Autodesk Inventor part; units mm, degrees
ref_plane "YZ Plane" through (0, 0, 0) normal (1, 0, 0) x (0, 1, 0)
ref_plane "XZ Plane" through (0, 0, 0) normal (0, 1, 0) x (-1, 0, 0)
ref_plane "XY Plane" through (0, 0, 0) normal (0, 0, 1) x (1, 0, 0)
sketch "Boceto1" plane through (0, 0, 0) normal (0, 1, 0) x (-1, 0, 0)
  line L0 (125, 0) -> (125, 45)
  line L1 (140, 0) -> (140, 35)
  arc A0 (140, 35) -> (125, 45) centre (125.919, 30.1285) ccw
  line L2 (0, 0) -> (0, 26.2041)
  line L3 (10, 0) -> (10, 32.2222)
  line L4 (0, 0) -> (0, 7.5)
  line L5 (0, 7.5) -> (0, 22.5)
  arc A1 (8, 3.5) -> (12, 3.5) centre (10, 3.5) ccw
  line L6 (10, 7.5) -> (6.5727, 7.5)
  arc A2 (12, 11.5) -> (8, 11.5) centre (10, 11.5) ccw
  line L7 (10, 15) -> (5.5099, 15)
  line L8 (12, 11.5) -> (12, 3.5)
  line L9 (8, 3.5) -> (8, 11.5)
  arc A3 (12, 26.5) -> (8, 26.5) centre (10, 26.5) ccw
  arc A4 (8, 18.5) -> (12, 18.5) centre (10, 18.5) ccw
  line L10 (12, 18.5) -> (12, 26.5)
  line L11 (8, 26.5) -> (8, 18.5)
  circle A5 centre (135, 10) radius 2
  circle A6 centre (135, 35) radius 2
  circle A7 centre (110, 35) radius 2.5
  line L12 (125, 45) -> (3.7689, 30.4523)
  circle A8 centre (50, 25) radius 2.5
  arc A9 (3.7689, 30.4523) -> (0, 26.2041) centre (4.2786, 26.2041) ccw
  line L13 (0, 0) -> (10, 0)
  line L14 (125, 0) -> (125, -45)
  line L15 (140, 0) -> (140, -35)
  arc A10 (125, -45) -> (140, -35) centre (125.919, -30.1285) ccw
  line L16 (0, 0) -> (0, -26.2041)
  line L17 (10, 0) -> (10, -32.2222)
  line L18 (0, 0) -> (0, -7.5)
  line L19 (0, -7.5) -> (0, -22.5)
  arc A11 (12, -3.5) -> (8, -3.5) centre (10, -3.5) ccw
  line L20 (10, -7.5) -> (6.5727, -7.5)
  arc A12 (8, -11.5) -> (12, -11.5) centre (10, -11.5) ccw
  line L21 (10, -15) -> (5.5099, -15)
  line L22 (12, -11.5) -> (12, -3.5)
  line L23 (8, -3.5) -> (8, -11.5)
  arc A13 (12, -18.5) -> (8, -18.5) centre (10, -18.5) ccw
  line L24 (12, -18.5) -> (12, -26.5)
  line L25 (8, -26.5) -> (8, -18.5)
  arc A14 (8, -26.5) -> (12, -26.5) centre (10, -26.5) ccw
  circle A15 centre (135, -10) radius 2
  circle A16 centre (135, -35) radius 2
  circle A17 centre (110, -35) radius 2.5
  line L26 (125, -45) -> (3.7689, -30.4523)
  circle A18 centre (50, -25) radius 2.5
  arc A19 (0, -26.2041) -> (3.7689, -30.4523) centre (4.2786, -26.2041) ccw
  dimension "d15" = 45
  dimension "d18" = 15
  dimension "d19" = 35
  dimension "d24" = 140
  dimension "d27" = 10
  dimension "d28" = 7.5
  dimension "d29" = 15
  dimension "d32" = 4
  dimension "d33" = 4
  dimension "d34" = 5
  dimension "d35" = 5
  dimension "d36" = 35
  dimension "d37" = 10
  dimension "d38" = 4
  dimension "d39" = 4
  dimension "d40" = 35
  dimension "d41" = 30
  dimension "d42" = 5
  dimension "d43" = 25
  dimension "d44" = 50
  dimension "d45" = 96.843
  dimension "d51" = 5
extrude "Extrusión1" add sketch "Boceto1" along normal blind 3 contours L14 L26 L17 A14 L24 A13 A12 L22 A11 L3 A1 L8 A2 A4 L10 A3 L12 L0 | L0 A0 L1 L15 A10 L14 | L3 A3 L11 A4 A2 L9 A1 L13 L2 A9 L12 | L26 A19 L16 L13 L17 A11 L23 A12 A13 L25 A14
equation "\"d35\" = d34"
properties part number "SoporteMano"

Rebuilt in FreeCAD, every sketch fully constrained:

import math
import FreeCAD as App
import Part
import Sketcher

V = App.Vector
Q = App.Units.Quantity

doc = App.newDocument("Part")
body = doc.addObject("PartDesign::Body", "Body")

# Sketch on XZ plane
sketch1 = body.newObject("Sketcher::SketchObject", "Sketch")
sketch1.AttachmentSupport = (doc.getObject("XZ_Plane"), [""])
sketch1.MapMode = "FlatFace"
sketch1.addGeometry(Part.ArcOfCircle(Part.Circle(V(-125.919, -30.1285, 0), V(0, 0, 1), 14.899868), math.radians(-160.916291), math.radians(-86.463844)), False)
sketch1.addGeometry(Part.LineSegment(V(-140, -35, 0), V(-140, 35, 0)), False)
sketch1.addGeometry(Part.ArcOfCircle(Part.Circle(V(-125.919, 30.1285, 0), V(0, 0, 1), 14.899868), math.radians(86.463844), math.radians(160.916291)), False)
sketch1.addGeometry(Part.LineSegment(V(-125, 45, 0), V(-3.7689, 30.4523, 0)), False)
sketch1.addGeometry(Part.ArcOfCircle(Part.Circle(V(-4.2786, 26.2041, 0), V(0, 0, 1), 4.278668), math.radians(0), math.radians(83.158343)), False)
sketch1.addGeometry(Part.LineSegment(V(0, 26.2041, 0), V(0, -26.2041, 0)), False)
sketch1.addGeometry(Part.ArcOfCircle(Part.Circle(V(-4.2786, -26.2041, 0), V(0, 0, 1), 4.2786), math.radians(-83.158343), math.radians(0)), False)
sketch1.addGeometry(Part.LineSegment(V(-3.7689, -30.4523, 0), V(-125, -45, 0)), False)
sketch1.addGeometry(Part.ArcOfCircle(Part.Circle(V(-10, -26.5, 0), V(0, 0, 1), 2), math.radians(180), math.radians(360)), False)
sketch1.addGeometry(Part.LineSegment(V(-8, -26.5, 0), V(-8, -18.5, 0)), False)
sketch1.addGeometry(Part.ArcOfCircle(Part.Circle(V(-10, -18.5, 0), V(0, 0, 1), 2), math.radians(0), math.radians(180)), False)
sketch1.addGeometry(Part.LineSegment(V(-12, -18.5, 0), V(-12, -26.5, 0)), False)
sketch1.addGeometry(Part.ArcOfCircle(Part.Circle(V(-10, -11.5, 0), V(0, 0, 1), 2), math.radians(180), math.radians(360)), False)
sketch1.addGeometry(Part.LineSegment(V(-8, -11.5, 0), V(-8, -3.5, 0)), False)
sketch1.addGeometry(Part.ArcOfCircle(Part.Circle(V(-10, -3.5, 0), V(0, 0, 1), 2), math.radians(0), math.radians(180)), False)
sketch1.addGeometry(Part.LineSegment(V(-12, -3.5, 0), V(-12, -11.5, 0)), False)
sketch1.addGeometry(Part.ArcOfCircle(Part.Circle(V(-10, 3.5, 0), V(0, 0, 1), 2), math.radians(180), math.radians(360)), False)
sketch1.addGeometry(Part.LineSegment(V(-8, 3.5, 0), V(-8, 11.5, 0)), False)
sketch1.addGeometry(Part.ArcOfCircle(Part.Circle(V(-10, 11.5, 0), V(0, 0, 1), 2), math.radians(0), math.radians(180)), False)
sketch1.addGeometry(Part.LineSegment(V(-12, 11.5, 0), V(-12, 3.5, 0)), False)
sketch1.addGeometry(Part.ArcOfCircle(Part.Circle(V(-10, 18.5, 0), V(0, 0, 1), 2), math.radians(180), math.radians(360)), False)
sketch1.addGeometry(Part.LineSegment(V(-8, 18.5, 0), V(-8, 26.5, 0)), False)
sketch1.addGeometry(Part.ArcOfCircle(Part.Circle(V(-10, 26.5, 0), V(0, 0, 1), 2), math.radians(0), math.radians(180)), False)
sketch1.addGeometry(Part.LineSegment(V(-12, 26.5, 0), V(-12, 18.5, 0)), False)
sketch1.addGeometry(Part.Circle(V(-50, -25, 0), V(0, 0, 1), 2.5), False)
sketch1.addGeometry(Part.Circle(V(-110, -35, 0), V(0, 0, 1), 2.5), False)
sketch1.addGeometry(Part.Circle(V(-50, 25, 0), V(0, 0, 1), 2.5), False)
sketch1.addGeometry(Part.Circle(V(-110, 35, 0), V(0, 0, 1), 2.5), False)
sketch1.addGeometry(Part.Circle(V(-135, 10, 0), V(0, 0, 1), 2), False)
sketch1.addGeometry(Part.Circle(V(-135, 35, 0), V(0, 0, 1), 2), False)
sketch1.addGeometry(Part.Circle(V(-135, -35, 0), V(0, 0, 1), 2), False)
sketch1.addGeometry(Part.Circle(V(-135, -10, 0), V(0, 0, 1), 2), False)
sketch1.addConstraint(Sketcher.Constraint("Coincident", 0, 1, 1, 1))
sketch1.addConstraint(Sketcher.Constraint("Coincident", 1, 2, 2, 2))
sketch1.addConstraint(Sketcher.Constraint("Coincident", 2, 1, 3, 1))
sketch1.addConstraint(Sketcher.Constraint("Tangent", 3, 2, 4, 2))
sketch1.addConstraint(Sketcher.Constraint("Tangent", 4, 1, 5, 1))
sketch1.addConstraint(Sketcher.Constraint("Tangent", 5, 2, 6, 2))
sketch1.addConstraint(Sketcher.Constraint("Tangent", 6, 1, 7, 1))
sketch1.addConstraint(Sketcher.Constraint("Coincident", 7, 2, 0, 2))
sketch1.addConstraint(Sketcher.Constraint("Tangent", 8, 2, 9, 1))
sketch1.addConstraint(Sketcher.Constraint("Tangent", 9, 2, 10, 1))
sketch1.addConstraint(Sketcher.Constraint("Tangent", 10, 2, 11, 1))
sketch1.addConstraint(Sketcher.Constraint("Tangent", 11, 2, 8, 1))
sketch1.addConstraint(Sketcher.Constraint("Tangent", 12, 2, 13, 1))
sketch1.addConstraint(Sketcher.Constraint("Tangent", 13, 2, 14, 1))
sketch1.addConstraint(Sketcher.Constraint("Tangent", 14, 2, 15, 1))
sketch1.addConstraint(Sketcher.Constraint("Tangent", 15, 2, 12, 1))
sketch1.addConstraint(Sketcher.Constraint("Tangent", 16, 2, 17, 1))
sketch1.addConstraint(Sketcher.Constraint("Tangent", 17, 2, 18, 1))
sketch1.addConstraint(Sketcher.Constraint("Tangent", 18, 2, 19, 1))
sketch1.addConstraint(Sketcher.Constraint("Tangent", 19, 2, 16, 1))
sketch1.addConstraint(Sketcher.Constraint("Tangent", 20, 2, 21, 1))
sketch1.addConstraint(Sketcher.Constraint("Tangent", 21, 2, 22, 1))
sketch1.addConstraint(Sketcher.Constraint("Tangent", 22, 2, 23, 1))
sketch1.addConstraint(Sketcher.Constraint("Tangent", 23, 2, 20, 1))
sketch1.addConstraint(Sketcher.Constraint("Vertical", 1))
sketch1.addConstraint(Sketcher.Constraint("Vertical", 5))
sketch1.addConstraint(Sketcher.Constraint("Vertical", 9))
sketch1.addConstraint(Sketcher.Constraint("Vertical", 11))
sketch1.addConstraint(Sketcher.Constraint("Vertical", 13))
sketch1.addConstraint(Sketcher.Constraint("Vertical", 15))
sketch1.addConstraint(Sketcher.Constraint("Vertical", 17))
sketch1.addConstraint(Sketcher.Constraint("Vertical", 19))
sketch1.addConstraint(Sketcher.Constraint("Vertical", 21))
sketch1.addConstraint(Sketcher.Constraint("Vertical", 23))
sketch1.addConstraint(Sketcher.Constraint("Equal", 0, 2))
sketch1.addConstraint(Sketcher.Constraint("Equal", 4, 6))
sketch1.addConstraint(Sketcher.Constraint("Equal", 10, 12))
sketch1.addConstraint(Sketcher.Constraint("Equal", 14, 16))
sketch1.addConstraint(Sketcher.Constraint("Equal", 18, 20))
sketch1.addConstraint(Sketcher.Constraint("Equal", 24, 25))
sketch1.addConstraint(Sketcher.Constraint("Equal", 25, 26))
sketch1.addConstraint(Sketcher.Constraint("Equal", 26, 27))
sketch1.addConstraint(Sketcher.Constraint("Equal", 22, 28))
sketch1.addConstraint(Sketcher.Constraint("Equal", 28, 29))
sketch1.addConstraint(Sketcher.Constraint("Equal", 29, 30))
sketch1.addConstraint(Sketcher.Constraint("Equal", 30, 31))
sketch1.addConstraint(Sketcher.Constraint("Symmetric", 4, 1, 5, 2, -1, 1))
sketch1.addConstraint(Sketcher.Constraint("Symmetric", 0, 3, 2, 3, -1))
sketch1.addConstraint(Sketcher.Constraint("Symmetric", 14, 3, 16, 3, -1))
sketch1.addConstraint(Sketcher.Constraint("Symmetric", 10, 3, 20, 3, -1))
sketch1.addConstraint(Sketcher.Constraint("Symmetric", 24, 3, 26, 3, -1))
sketch1.addConstraint(Sketcher.Constraint("Symmetric", 25, 3, 27, 3, -1))
sketch1.addConstraint(Sketcher.Constraint("Symmetric", 29, 3, 30, 3, -1))
sketch1.addConstraint(Sketcher.Constraint("Symmetric", 28, 3, 31, 3, -1))
sketch1.addConstraint(Sketcher.Constraint("Horizontal", 27, 3, 29, 3))
sketch1.addConstraint(Sketcher.Constraint("Horizontal", 30, 3, 0, 1))
sketch1.addConstraint(Sketcher.Constraint("Vertical", 10, 3, 12, 3))
sketch1.addConstraint(Sketcher.Constraint("Vertical", 28, 3, 29, 3))
sketch1.addConstraint(Sketcher.Constraint("Vertical", 2, 1, 7, 2))
sketch1.addConstraint(Sketcher.Constraint("Equal", 11, 13))
sketch1.addConstraint(Sketcher.Constraint("Equal", 15, 17))
sketch1.addConstraint(Sketcher.Constraint("Equal", 19, 21))
sketch1.addConstraint(Sketcher.Constraint("Diameter", 24, Q("5 mm")))
sketch1.addConstraint(Sketcher.Constraint("Diameter", 28, Q("4 mm")))
sketch1.addConstraint(Sketcher.Constraint("DistanceX", 8, 3, -1, 1, Q("10 mm")))
sketch1.addConstraint(Sketcher.Constraint("DistanceX", 24, 3, -1, 1, Q("50 mm")))
sketch1.addConstraint(Sketcher.Constraint("DistanceY", 24, 3, -1, 1, Q("25 mm")))
sketch1.addConstraint(Sketcher.Constraint("DistanceY", 25, 3, -1, 1, Q("35 mm")))
sketch1.addConstraint(Sketcher.Constraint("DistanceY", -1, 1, 28, 3, Q("10 mm")))
sketch1.addConstraint(Sketcher.Constraint("DistanceX", 0, 1, -1, 1, Q("140 mm")))
sketch1.addConstraint(Sketcher.Constraint("DistanceY", -1, 1, 2, 1, Q("45 mm")))
sketch1.addConstraint(Sketcher.Constraint("DistanceY", 8, 3, 12, 3, Q("15 mm")))
sketch1.addConstraint(Sketcher.Constraint("DistanceY", 12, 3, 16, 3, Q("15 mm")))
sketch1.addConstraint(Sketcher.Constraint("DistanceX", 28, 3, 27, 3, Q("25 mm")))
sketch1.addConstraint(Sketcher.Constraint("DistanceX", 0, 1, 30, 3, Q("5 mm")))
sketch1.addConstraint(Sketcher.Constraint("DistanceX", 29, 3, 2, 1, Q("10 mm")))
sketch1.addConstraint(Sketcher.Constraint("DistanceY", 9, 1, 9, 2, Q("8 mm")))
sketch1.addConstraint(Sketcher.Constraint("Radius", 0, Q("14.8999 mm")))
sketch1.addConstraint(Sketcher.Constraint("Radius", 4, Q("4.2787 mm")))
sketch1.addConstraint(Sketcher.Constraint("DistanceY", 5, 2, 5, 1, Q("52.4082 mm")))
pad1 = body.newObject("PartDesign::Pad", "Pad")
pad1.Profile = sketch1
pad1.Length = 3
pad1.Reversed = True

doc.recompute()
